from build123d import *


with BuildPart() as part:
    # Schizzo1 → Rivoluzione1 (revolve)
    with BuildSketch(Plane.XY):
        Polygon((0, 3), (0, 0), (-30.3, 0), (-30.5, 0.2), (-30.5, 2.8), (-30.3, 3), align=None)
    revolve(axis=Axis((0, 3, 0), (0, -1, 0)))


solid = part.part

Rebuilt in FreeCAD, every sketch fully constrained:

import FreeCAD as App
import Part
import Sketcher


def add_polygon(sketch, points):
    """Adds a closed chain of lines whose ends are joined by coincident constraints."""
    first, n = sketch.GeometryCount, len(points)
    for a, b in zip(points, points[1:] + points[:1]):
        sketch.addGeometry(Part.LineSegment(App.Vector(*a, 0), App.Vector(*b, 0)), False)
    for i in range(n):
        sketch.addConstraint(Sketcher.Constraint("Coincident", first + i, 2, first + (i + 1) % n, 1))

doc = App.newDocument("Part")
body = doc.addObject("PartDesign::Body", "Body")

sketch1 = body.newObject("Sketcher::SketchObject", "Sketch")
sketch1.AttachmentSupport = (doc.getObject("XY_Plane"), [""])
sketch1.MapMode = "FlatFace"
add_polygon(sketch1, [(0, 0), (0, 3), (-30.3, 3), (-30.5, 2.8), (-30.5, 0.2), (-30.3, 0)])
sketch1.addConstraint([
    Sketcher.Constraint("Vertical", 0),
    Sketcher.Constraint("Horizontal", 1),
    Sketcher.Constraint("Vertical", 3),
    Sketcher.Constraint("Horizontal", 5),
    Sketcher.Constraint("Coincident", 5, 2, -1, 1),
    Sketcher.Constraint("Perpendicular", 2, 4),
    Sketcher.Constraint("Vertical", 1, 2, 4, 2),
    Sketcher.Constraint("Equal", 2, 4),
    Sketcher.Constraint("DistanceY", 0, 1, 0, 2, 3.0),
    Sketcher.Constraint("DistanceX", 1, 2, 1, 1, 30.3),
    Sketcher.Constraint("DistanceY", 3, 2, 3, 1, 2.6),
])
revolution = body.newObject("PartDesign::Revolution", "Revolution")
revolution.Profile = sketch1
revolution.ReferenceAxis = (sketch1, ["V_Axis"])
revolution.Angle = 360

doc.recompute()
